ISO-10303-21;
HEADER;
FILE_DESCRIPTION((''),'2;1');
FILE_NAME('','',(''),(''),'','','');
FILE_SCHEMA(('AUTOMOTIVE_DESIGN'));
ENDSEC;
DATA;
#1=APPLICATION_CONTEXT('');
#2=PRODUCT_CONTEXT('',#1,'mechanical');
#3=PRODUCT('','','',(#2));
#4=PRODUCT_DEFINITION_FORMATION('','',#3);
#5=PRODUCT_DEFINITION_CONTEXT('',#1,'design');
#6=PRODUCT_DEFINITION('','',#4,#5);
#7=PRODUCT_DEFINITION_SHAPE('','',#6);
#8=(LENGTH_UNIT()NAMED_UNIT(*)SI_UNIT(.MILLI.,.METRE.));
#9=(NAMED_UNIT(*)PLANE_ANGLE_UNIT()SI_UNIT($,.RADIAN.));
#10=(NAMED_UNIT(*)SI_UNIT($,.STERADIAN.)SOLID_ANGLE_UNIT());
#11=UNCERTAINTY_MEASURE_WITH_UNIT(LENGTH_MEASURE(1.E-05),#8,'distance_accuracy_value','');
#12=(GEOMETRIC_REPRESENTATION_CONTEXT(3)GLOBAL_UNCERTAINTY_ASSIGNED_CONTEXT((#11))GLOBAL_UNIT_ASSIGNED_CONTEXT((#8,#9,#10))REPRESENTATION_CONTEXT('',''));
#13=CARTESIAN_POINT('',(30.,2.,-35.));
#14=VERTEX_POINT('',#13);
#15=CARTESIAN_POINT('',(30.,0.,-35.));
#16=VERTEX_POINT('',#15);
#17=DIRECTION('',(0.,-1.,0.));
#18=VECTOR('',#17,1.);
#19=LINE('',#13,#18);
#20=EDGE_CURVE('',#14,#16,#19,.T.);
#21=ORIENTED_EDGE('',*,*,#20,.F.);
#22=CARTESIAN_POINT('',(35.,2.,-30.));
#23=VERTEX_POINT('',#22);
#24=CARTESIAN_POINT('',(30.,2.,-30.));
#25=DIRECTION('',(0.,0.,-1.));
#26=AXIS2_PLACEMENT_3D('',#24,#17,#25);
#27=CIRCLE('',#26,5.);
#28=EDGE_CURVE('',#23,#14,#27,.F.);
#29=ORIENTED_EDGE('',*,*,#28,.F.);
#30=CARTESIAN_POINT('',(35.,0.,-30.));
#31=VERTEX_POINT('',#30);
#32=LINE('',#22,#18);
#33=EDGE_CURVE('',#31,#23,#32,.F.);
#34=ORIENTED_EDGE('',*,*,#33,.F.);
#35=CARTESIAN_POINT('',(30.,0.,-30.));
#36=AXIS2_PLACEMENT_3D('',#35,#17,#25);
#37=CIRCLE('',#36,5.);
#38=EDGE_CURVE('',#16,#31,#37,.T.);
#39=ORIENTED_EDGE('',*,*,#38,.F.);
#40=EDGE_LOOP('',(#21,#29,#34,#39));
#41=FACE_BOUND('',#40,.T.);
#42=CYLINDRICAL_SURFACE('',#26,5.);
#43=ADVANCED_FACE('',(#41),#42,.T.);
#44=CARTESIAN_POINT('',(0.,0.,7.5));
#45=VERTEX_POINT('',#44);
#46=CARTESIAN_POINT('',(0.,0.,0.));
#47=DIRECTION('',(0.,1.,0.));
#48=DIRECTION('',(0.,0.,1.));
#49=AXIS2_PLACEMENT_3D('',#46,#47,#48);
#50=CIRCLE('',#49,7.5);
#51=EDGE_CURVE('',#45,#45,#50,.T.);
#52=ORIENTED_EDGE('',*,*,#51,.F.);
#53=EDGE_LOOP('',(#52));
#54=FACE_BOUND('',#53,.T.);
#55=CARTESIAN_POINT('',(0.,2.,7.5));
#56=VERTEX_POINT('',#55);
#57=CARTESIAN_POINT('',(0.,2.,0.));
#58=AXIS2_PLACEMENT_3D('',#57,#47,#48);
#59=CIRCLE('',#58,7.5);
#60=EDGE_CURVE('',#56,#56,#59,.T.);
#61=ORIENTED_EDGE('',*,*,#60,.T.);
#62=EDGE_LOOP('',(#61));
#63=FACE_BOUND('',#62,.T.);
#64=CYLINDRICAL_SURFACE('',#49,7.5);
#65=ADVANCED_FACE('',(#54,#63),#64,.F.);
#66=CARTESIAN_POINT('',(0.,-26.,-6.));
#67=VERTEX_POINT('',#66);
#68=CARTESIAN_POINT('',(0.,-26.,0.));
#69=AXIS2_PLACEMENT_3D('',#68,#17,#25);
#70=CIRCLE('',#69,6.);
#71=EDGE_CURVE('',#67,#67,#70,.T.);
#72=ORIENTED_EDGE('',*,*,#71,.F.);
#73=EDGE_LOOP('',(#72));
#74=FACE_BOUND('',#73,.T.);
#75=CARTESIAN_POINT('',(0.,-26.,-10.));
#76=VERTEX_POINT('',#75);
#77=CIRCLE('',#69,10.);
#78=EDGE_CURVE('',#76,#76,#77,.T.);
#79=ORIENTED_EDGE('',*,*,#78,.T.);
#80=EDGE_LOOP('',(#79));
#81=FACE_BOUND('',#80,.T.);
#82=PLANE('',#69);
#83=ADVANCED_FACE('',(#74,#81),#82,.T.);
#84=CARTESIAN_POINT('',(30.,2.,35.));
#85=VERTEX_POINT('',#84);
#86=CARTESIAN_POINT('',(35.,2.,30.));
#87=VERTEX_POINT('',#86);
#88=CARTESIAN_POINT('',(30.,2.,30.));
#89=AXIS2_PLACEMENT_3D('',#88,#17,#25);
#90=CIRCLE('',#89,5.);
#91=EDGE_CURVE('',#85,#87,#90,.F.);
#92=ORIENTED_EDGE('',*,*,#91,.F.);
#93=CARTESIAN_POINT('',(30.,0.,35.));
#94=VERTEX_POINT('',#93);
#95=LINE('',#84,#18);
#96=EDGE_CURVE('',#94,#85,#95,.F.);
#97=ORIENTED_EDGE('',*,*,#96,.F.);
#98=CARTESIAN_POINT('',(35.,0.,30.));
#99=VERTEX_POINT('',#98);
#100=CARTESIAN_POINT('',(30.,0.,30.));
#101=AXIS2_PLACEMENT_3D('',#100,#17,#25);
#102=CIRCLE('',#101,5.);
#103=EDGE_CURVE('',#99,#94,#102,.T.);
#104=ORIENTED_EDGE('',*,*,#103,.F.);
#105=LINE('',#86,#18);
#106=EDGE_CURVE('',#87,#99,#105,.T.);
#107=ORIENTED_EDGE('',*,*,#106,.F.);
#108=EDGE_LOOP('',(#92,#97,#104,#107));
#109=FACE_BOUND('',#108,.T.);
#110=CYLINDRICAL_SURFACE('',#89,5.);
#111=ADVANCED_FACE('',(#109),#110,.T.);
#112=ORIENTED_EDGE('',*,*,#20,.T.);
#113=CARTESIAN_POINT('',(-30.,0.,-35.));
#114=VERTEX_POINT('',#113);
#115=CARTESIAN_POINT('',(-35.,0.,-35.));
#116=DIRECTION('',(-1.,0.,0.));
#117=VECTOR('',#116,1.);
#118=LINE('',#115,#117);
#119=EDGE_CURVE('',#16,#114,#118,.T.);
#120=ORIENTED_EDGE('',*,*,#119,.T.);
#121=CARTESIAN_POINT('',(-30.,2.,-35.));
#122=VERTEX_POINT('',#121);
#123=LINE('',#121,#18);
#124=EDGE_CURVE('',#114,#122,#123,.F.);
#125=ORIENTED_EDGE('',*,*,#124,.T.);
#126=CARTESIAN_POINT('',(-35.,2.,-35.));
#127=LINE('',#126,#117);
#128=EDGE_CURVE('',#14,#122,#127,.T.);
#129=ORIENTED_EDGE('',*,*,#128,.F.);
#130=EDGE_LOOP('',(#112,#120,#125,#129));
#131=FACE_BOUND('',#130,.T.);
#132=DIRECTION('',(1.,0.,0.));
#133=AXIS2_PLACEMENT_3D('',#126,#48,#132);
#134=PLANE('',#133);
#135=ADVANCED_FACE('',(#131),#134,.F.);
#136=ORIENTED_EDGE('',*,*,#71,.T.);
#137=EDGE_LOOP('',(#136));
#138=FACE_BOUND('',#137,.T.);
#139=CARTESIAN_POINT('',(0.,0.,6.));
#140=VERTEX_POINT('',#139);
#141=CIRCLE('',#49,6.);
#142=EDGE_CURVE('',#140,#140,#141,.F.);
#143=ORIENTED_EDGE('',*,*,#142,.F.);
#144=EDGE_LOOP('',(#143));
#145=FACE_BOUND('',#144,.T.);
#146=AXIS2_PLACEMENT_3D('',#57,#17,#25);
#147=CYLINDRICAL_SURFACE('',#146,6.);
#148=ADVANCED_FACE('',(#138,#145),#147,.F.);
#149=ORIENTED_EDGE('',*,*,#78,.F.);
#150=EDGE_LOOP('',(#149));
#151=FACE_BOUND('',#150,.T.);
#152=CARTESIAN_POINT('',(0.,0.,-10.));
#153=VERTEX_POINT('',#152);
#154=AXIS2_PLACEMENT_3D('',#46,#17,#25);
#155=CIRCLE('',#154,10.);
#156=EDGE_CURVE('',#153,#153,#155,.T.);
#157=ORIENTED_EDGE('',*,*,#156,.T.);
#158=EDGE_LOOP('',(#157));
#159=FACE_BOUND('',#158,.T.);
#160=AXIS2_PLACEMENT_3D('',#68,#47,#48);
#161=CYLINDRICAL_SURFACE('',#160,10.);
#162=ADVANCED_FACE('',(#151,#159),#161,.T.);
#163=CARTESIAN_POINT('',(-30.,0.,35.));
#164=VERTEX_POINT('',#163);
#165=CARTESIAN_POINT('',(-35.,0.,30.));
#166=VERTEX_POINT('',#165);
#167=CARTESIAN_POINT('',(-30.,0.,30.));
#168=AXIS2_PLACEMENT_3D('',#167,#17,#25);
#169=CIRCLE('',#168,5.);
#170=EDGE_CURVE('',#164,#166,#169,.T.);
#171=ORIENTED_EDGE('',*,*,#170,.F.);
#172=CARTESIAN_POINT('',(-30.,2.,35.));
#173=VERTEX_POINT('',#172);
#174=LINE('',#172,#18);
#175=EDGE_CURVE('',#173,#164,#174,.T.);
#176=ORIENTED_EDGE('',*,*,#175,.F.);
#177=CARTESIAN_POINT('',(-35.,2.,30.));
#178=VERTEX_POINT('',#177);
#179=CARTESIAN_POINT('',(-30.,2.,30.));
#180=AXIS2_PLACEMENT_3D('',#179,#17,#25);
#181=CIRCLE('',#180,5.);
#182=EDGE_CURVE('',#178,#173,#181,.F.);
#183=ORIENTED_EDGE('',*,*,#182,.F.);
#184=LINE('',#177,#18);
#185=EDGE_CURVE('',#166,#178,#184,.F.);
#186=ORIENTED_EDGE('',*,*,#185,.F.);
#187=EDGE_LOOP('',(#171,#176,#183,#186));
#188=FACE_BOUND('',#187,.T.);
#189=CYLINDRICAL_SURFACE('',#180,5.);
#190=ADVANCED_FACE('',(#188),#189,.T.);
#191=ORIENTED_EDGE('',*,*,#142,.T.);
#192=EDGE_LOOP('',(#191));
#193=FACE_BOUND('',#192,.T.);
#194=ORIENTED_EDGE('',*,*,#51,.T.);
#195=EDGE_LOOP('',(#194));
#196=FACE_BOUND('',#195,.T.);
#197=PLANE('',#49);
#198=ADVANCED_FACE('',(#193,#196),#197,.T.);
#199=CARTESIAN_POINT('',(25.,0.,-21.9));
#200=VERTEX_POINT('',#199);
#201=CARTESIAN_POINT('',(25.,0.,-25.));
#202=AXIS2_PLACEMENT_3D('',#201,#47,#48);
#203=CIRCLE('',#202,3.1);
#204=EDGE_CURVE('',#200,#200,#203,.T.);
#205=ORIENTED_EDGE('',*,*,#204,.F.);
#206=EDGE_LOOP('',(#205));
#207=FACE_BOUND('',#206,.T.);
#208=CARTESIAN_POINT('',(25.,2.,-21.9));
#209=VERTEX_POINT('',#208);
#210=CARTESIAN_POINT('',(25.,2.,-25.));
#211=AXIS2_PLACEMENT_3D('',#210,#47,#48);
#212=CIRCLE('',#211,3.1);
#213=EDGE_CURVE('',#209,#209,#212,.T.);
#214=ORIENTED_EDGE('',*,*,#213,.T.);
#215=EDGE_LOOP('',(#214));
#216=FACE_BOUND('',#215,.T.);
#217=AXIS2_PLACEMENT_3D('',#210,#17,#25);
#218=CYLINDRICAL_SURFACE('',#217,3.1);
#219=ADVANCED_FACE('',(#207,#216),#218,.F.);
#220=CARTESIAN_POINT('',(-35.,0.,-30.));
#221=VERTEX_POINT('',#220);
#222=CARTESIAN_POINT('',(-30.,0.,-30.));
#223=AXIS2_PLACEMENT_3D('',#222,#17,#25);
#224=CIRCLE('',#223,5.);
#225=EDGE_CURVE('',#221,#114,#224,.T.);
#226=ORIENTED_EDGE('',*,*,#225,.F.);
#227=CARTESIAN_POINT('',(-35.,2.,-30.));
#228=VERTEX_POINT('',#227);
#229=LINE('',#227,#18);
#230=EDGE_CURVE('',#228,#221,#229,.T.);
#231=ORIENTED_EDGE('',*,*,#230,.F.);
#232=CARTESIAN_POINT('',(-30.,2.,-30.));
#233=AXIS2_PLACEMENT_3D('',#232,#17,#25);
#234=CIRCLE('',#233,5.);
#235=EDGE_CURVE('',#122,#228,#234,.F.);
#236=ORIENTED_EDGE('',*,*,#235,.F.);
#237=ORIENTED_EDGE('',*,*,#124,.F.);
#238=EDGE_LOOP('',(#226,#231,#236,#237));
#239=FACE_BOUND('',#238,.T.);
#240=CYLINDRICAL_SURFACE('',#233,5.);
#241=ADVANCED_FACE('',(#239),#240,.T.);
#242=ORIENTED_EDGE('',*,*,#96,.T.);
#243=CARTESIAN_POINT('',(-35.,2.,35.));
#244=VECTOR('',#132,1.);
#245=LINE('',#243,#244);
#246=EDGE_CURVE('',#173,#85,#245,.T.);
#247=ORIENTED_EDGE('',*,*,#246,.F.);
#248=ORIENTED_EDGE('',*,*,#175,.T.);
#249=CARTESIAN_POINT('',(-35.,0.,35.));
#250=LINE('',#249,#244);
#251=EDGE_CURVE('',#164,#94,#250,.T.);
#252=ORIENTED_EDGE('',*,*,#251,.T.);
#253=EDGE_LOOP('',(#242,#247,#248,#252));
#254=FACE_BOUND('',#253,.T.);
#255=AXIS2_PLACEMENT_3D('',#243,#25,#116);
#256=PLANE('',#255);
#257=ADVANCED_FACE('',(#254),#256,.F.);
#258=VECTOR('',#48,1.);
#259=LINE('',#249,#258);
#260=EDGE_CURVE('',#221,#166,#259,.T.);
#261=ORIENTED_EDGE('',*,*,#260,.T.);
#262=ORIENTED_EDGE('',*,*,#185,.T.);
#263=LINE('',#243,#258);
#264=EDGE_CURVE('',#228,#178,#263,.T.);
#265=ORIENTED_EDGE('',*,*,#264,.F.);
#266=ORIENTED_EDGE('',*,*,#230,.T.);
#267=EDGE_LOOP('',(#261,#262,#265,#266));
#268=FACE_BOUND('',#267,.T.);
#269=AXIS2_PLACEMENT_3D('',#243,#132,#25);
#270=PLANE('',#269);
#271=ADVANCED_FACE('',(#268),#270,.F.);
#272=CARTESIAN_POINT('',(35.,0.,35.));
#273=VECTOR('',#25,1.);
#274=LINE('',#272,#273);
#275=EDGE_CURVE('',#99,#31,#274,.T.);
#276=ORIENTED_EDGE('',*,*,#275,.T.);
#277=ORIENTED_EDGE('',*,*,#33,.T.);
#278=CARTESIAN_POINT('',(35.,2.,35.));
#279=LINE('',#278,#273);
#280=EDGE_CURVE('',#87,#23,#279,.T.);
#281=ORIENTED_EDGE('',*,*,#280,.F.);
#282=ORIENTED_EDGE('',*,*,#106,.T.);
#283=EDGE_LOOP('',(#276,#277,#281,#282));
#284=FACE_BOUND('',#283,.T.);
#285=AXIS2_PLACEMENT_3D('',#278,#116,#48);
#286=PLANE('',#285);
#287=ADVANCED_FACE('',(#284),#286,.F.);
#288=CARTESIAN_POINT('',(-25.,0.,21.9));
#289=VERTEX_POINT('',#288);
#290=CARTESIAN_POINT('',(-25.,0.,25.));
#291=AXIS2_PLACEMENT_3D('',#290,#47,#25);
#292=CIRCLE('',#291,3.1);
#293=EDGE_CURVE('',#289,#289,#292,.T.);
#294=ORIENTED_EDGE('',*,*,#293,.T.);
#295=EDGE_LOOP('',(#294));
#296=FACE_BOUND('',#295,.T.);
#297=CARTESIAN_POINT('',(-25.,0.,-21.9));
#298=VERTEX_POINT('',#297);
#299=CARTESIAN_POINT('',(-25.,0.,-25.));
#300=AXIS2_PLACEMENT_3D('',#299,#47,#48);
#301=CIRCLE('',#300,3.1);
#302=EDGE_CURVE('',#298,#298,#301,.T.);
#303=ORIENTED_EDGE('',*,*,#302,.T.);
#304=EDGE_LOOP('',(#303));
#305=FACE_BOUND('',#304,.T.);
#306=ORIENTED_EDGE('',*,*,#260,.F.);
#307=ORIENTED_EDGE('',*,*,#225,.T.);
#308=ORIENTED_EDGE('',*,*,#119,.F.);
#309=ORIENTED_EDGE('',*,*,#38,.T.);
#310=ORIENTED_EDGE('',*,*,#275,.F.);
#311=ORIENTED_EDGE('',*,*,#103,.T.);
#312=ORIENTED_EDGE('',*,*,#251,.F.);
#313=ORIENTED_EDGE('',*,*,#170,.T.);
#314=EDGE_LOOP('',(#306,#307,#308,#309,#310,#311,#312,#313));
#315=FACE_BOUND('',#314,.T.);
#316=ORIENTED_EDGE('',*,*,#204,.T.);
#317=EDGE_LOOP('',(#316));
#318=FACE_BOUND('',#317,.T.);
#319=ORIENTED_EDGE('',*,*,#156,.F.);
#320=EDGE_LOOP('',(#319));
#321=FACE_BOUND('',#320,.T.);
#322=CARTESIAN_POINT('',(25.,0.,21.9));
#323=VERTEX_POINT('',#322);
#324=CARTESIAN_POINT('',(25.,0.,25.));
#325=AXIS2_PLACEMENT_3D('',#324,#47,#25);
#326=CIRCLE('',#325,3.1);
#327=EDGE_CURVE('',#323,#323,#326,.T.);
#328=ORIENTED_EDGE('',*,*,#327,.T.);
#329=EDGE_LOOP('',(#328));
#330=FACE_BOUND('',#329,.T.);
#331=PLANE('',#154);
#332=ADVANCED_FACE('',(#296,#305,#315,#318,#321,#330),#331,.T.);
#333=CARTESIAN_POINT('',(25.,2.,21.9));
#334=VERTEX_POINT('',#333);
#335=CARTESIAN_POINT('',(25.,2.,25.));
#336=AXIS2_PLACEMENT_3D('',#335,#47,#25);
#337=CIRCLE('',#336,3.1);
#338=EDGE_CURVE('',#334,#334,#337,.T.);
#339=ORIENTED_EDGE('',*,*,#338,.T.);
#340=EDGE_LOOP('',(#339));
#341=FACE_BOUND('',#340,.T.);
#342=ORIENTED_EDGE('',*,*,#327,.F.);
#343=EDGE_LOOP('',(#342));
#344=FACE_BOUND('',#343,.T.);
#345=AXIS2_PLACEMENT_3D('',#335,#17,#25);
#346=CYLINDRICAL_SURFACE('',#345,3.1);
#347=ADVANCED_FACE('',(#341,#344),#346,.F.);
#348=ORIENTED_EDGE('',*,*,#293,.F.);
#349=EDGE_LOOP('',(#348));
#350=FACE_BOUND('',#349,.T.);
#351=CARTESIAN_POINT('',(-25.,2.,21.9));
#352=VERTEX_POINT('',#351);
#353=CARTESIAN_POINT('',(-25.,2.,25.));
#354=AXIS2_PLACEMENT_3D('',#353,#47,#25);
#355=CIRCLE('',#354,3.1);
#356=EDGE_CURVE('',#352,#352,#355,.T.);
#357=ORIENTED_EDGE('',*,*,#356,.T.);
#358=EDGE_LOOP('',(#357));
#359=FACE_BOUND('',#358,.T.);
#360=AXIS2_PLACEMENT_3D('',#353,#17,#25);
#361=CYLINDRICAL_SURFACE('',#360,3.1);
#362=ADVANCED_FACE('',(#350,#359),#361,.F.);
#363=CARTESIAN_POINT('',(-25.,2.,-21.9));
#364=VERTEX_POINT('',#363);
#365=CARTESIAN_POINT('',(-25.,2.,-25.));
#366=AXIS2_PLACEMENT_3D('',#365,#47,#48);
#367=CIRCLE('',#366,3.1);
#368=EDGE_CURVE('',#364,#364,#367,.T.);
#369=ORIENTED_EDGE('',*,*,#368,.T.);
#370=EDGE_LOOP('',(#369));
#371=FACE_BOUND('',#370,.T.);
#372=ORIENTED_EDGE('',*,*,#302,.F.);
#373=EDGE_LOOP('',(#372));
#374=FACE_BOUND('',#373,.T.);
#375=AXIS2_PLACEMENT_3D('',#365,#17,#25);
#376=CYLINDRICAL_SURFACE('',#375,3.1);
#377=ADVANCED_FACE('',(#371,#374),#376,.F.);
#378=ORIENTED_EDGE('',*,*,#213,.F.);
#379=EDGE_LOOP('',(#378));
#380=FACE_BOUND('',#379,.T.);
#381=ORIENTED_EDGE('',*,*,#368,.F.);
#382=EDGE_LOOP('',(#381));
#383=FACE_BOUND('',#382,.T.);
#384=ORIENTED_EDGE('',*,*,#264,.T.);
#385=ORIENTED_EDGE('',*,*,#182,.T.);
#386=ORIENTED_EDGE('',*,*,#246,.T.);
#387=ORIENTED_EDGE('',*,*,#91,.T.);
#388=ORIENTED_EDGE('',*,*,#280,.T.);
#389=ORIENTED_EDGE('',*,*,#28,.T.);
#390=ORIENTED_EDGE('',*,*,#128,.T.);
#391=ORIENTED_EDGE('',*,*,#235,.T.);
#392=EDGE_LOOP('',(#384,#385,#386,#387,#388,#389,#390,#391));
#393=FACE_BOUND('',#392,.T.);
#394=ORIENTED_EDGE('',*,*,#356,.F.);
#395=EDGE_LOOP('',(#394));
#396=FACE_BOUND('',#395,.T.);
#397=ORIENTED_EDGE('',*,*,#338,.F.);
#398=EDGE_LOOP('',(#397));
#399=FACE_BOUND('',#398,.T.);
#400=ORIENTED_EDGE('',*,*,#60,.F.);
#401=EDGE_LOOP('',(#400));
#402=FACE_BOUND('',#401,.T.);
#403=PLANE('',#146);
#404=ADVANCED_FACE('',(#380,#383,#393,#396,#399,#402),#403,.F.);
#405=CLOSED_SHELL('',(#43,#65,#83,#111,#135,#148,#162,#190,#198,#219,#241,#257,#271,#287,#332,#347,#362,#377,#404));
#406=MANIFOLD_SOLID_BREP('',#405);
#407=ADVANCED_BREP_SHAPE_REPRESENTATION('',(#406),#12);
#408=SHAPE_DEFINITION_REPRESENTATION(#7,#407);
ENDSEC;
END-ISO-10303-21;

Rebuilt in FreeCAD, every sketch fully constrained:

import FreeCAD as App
import Part
import Sketcher
Q = App.Units.Quantity


def edges_at(feature, points):
    """Names of the edges that pass closest to the given points."""
    edges = feature.Shape.Edges
    near = lambda p: min(range(len(edges)), key=lambda i: edges[i].distToShape(Part.Vertex(*p))[0])
    return sorted({f"Edge{near(p) + 1}" for p in points})

doc = App.newDocument("Part")
body = doc.addObject("PartDesign::Body", "Body")

# Sketch on XZ plane
sketch1 = body.newObject("Sketcher::SketchObject", "Sketch")
sketch1.AttachmentSupport = (doc.getObject("XZ_Plane"), [""])
sketch1.MapMode = "FlatFace"
sketch1.addGeometry(Part.LineSegment(App.Vector(-35, -35, 0), App.Vector(-35, 35, 0)), False)
sketch1.addGeometry(Part.LineSegment(App.Vector(-35, 35, 0), App.Vector(35, 35, 0)), False)
sketch1.addGeometry(Part.LineSegment(App.Vector(35, 35, 0), App.Vector(35, -35, 0)), False)
sketch1.addGeometry(Part.LineSegment(App.Vector(35, -35, 0), App.Vector(-35, -35, 0)), False)
sketch1.addGeometry(Part.Circle(App.Vector(-25, 25, 0), App.Vector(0, 0, 1), 3.1), False)
sketch1.addGeometry(Part.Circle(App.Vector(25, 25, 0), App.Vector(0, 0, 1), 3.1), False)
sketch1.addGeometry(Part.Circle(App.Vector(-25, -25, 0), App.Vector(0, 0, 1), 3.1), False)
sketch1.addGeometry(Part.Circle(App.Vector(25, -25, 0), App.Vector(0, 0, 1), 3.1), False)
sketch1.addConstraint(Sketcher.Constraint("Coincident", 0, 2, 1, 1))
sketch1.addConstraint(Sketcher.Constraint("Coincident", 1, 2, 2, 1))
sketch1.addConstraint(Sketcher.Constraint("Coincident", 2, 2, 3, 1))
sketch1.addConstraint(Sketcher.Constraint("Coincident", 3, 2, 0, 1))
sketch1.addConstraint(Sketcher.Constraint("Vertical", 0))
sketch1.addConstraint(Sketcher.Constraint("Horizontal", 1))
sketch1.addConstraint(Sketcher.Constraint("Vertical", 2))
sketch1.addConstraint(Sketcher.Constraint("Horizontal", 3))
sketch1.addConstraint(Sketcher.Constraint("Equal", 4, 5))
sketch1.addConstraint(Sketcher.Constraint("Equal", 5, 6))
sketch1.addConstraint(Sketcher.Constraint("Equal", 6, 7))
sketch1.addConstraint(Sketcher.Constraint("Symmetric", 5, 3, 6, 3, -1, 1))
sketch1.addConstraint(Sketcher.Constraint("Symmetric", 4, 3, 7, 3, -1, 1))
sketch1.addConstraint(Sketcher.Constraint("Symmetric", 0, 2, 2, 2, -1, 1))
sketch1.addConstraint(Sketcher.Constraint("Symmetric", 4, 3, 5, 3, -2))
sketch1.addConstraint(Sketcher.Constraint("Equal", 3, 0))
sketch1.addConstraint(Sketcher.Constraint("Diameter", 4, Q("6.2 mm")))
sketch1.addConstraint(Sketcher.Constraint("DistanceX", 1, 1, 1, 2, Q("70 mm")))
sketch1.addConstraint(Sketcher.Constraint("DistanceX", 4, 3, -1, 1, Q("25 mm")))
sketch1.addConstraint(Sketcher.Constraint("DistanceY", -1, 1, 4, 3, Q("25 mm")))
pad1 = body.newObject("PartDesign::Pad", "Pad")
pad1.Profile = sketch1
pad1.Length = 2
pad1.Reversed = True
doc.recompute()

fillet = body.newObject("PartDesign::Fillet", "Fillet")
fillet.Base = (pad1, edges_at(pad1, [
    (35, 1, 35),
    (-35, 1, 35),
    (-35, 1, -35),
    (35, 1, -35),
]))
fillet.Radius = 5

# Sketch on XZ plane
sketch2 = body.newObject("Sketcher::SketchObject", "Sketch001")
sketch2.AttachmentSupport = (doc.getObject("XZ_Plane"), [""])
sketch2.MapMode = "FlatFace"
sketch2.addGeometry(Part.Circle(App.Vector(0, 0, 0), App.Vector(0, 0, 1), 10), False)
sketch2.addConstraint(Sketcher.Constraint("Coincident", 0, 3, -1, 1))
sketch2.addConstraint(Sketcher.Constraint("Diameter", 0, Q("20 mm")))
pad2 = body.newObject("PartDesign::Pad", "Pad001")
pad2.Profile = sketch2
pad2.Length = 26

# Sketch on XZ plane
sketch3 = body.newObject("Sketcher::SketchObject", "Sketch002")
sketch3.AttachmentSupport = (doc.getObject("XZ_Plane"), [""])
sketch3.MapMode = "FlatFace"
sketch3.AttachmentOffset = App.Placement(App.Vector(0, 0, 26), App.Rotation())
sketch3.addGeometry(Part.Circle(App.Vector(0, 0, 0), App.Vector(0, 0, 1), 6), False)
sketch3.addConstraint(Sketcher.Constraint("Coincident", 0, 3, -1, 1))
sketch3.addConstraint(Sketcher.Constraint("Diameter", 0, Q("12 mm")))
pocket1 = body.newObject("PartDesign::Pocket", "Pocket")
pocket1.Profile = sketch3
pocket1.Type = "ThroughAll"

# Sketch on XZ plane
sketch4 = body.newObject("Sketcher::SketchObject", "Sketch003")
sketch4.AttachmentSupport = (doc.getObject("XZ_Plane"), [""])
sketch4.MapMode = "FlatFace"
sketch4.AttachmentOffset = App.Placement(App.Vector(0, 0, -2), App.Rotation())
sketch4.addGeometry(Part.Circle(App.Vector(0, 0, 0), App.Vector(0, 0, 1), 8), False)
sketch4.addConstraint(Sketcher.Constraint("Coincident", 0, 3, -1, 1))
sketch4.addConstraint(Sketcher.Constraint("Diameter", 0, Q("15 mm")))
pocket2 = body.newObject("PartDesign::Pocket", "Pocket001")
pocket2.Profile = sketch4
pocket2.Length = 2
pocket2.Reversed = True

doc.recompute()
